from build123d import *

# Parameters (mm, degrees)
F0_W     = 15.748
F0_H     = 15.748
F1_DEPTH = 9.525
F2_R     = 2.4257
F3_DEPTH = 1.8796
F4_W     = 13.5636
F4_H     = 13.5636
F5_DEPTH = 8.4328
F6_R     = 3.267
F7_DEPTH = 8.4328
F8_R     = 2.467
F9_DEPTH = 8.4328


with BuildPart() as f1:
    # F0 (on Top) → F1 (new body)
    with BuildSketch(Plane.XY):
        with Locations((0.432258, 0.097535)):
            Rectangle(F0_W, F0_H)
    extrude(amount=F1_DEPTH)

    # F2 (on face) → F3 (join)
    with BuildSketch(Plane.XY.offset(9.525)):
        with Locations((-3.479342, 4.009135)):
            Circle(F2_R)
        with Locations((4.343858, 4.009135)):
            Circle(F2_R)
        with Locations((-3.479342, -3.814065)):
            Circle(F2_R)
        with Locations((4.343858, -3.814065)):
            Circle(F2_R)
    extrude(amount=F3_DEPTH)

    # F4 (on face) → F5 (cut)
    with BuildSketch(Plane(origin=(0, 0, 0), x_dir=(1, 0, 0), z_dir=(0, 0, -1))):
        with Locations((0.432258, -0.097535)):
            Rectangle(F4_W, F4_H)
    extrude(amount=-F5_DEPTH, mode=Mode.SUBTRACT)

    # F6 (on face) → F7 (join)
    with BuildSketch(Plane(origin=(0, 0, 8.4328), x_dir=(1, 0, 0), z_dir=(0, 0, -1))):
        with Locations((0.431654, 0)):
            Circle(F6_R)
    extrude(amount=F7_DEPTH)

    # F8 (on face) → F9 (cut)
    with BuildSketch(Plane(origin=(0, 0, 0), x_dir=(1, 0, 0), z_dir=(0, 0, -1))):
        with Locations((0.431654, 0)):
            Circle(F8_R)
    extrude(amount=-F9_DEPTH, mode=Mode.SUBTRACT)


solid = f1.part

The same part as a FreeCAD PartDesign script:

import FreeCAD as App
import Part
import Sketcher
Q = App.Units.Quantity

doc = App.newDocument("Part")
body = doc.addObject("PartDesign::Body", "Body")

# Sketch on XY plane
sketch1 = body.newObject("Sketcher::SketchObject", "Sketch")
sketch1.AttachmentSupport = (doc.getObject("XY_Plane"), [""])
sketch1.MapMode = "FlatFace"
sketch1.addGeometry(Part.LineSegment(App.Vector(-7, 8, 0), App.Vector(-7, -8, 0)), False)
sketch1.addGeometry(Part.LineSegment(App.Vector(-7, -8, 0), App.Vector(8, -8, 0)), False)
sketch1.addGeometry(Part.LineSegment(App.Vector(8, -8, 0), App.Vector(8, 8, 0)), False)
sketch1.addGeometry(Part.LineSegment(App.Vector(8, 8, 0), App.Vector(-7, 8, 0)), False)
sketch1.addConstraint(Sketcher.Constraint("Coincident", 0, 2, 1, 1))
sketch1.addConstraint(Sketcher.Constraint("Coincident", 1, 2, 2, 1))
sketch1.addConstraint(Sketcher.Constraint("Coincident", 2, 2, 3, 1))
sketch1.addConstraint(Sketcher.Constraint("Coincident", 3, 2, 0, 1))
sketch1.addConstraint(Sketcher.Constraint("Vertical", 0))
sketch1.addConstraint(Sketcher.Constraint("Horizontal", 1))
sketch1.addConstraint(Sketcher.Constraint("Vertical", 2))
sketch1.addConstraint(Sketcher.Constraint("Horizontal", 3))
sketch1.addConstraint(Sketcher.Constraint("Equal", 3, 0))
sketch1.addConstraint(Sketcher.Constraint("DistanceX", 1, 1, 1, 2, Q("0.62 in")))
sketch1.addConstraint(Sketcher.Constraint("DistanceX", 0, 2, -1, 1, 7.441742))
sketch1.addConstraint(Sketcher.Constraint("DistanceY", 0, 2, -1, 1, 7.776465))
pad1 = body.newObject("PartDesign::Pad", "Pad")
pad1.Profile = sketch1
pad1.Length = Q("0.375 in")

# Sketch on XY plane
sketch2 = body.newObject("Sketcher::SketchObject", "Sketch001")
sketch2.AttachmentSupport = (doc.getObject("XY_Plane"), [""])
sketch2.MapMode = "FlatFace"
sketch2.AttachmentOffset = App.Placement(App.Vector(0, 0, 0.375 * 25.4), App.Rotation())
sketch2.addGeometry(Part.Circle(App.Vector(-3.5, 4, 0), App.Vector(0, 0, 1), 2.4), False)
sketch2.addGeometry(Part.Circle(App.Vector(4.3, 4, 0), App.Vector(0, 0, 1), 2.4), False)
sketch2.addGeometry(Part.Circle(App.Vector(-3.5, -3.8, 0), App.Vector(0, 0, 1), 2.4), False)
sketch2.addGeometry(Part.Circle(App.Vector(4.3, -3.8, 0), App.Vector(0, 0, 1), 2.4), False)
sketch2.addConstraint(Sketcher.Constraint("Equal", 0, 1))
sketch2.addConstraint(Sketcher.Constraint("Equal", 1, 2))
sketch2.addConstraint(Sketcher.Constraint("Equal", 2, 3))
sketch2.addConstraint(Sketcher.Constraint("Horizontal", 0, 3, 1, 3))
sketch2.addConstraint(Sketcher.Constraint("Horizontal", 2, 3, 3, 3))
sketch2.addConstraint(Sketcher.Constraint("Vertical", 0, 3, 2, 3))
sketch2.addConstraint(Sketcher.Constraint("Vertical", 1, 3, 3, 3))
sketch2.addConstraint(Sketcher.Constraint("Diameter", 0, Q("0.191 in")))
sketch2.addConstraint(Sketcher.Constraint("DistanceX", 0, 3, 1, 3, Q("0.308 in")))
sketch2.addConstraint(Sketcher.Constraint("DistanceY", 2, 3, 0, 3, Q("0.308 in")))
sketch2.addConstraint(Sketcher.Constraint("DistanceX", 0, 3, -1, 1, 3.479342))
sketch2.addConstraint(Sketcher.Constraint("DistanceY", -1, 1, 0, 3, 4.009135))
pad2 = body.newObject("PartDesign::Pad", "Pad001")
pad2.Profile = sketch2
pad2.Length = Q("0.074 in")

# Sketch on XY plane
sketch3 = body.newObject("Sketcher::SketchObject", "Sketch002")
sketch3.AttachmentSupport = (doc.getObject("XY_Plane"), [""])
sketch3.MapMode = "FlatFace"
sketch3.addGeometry(Part.LineSegment(App.Vector(-6, -7, 0), App.Vector(-6, 7, 0)), False)
sketch3.addGeometry(Part.LineSegment(App.Vector(-6, 7, 0), App.Vector(7, 7, 0)), False)
sketch3.addGeometry(Part.LineSegment(App.Vector(7, 7, 0), App.Vector(7, -7, 0)), False)
sketch3.addGeometry(Part.LineSegment(App.Vector(7, -7, 0), App.Vector(-6, -7, 0)), False)
sketch3.addConstraint(Sketcher.Constraint("Coincident", 0, 2, 1, 1))
sketch3.addConstraint(Sketcher.Constraint("Coincident", 1, 2, 2, 1))
sketch3.addConstraint(Sketcher.Constraint("Coincident", 2, 2, 3, 1))
sketch3.addConstraint(Sketcher.Constraint("Coincident", 3, 2, 0, 1))
sketch3.addConstraint(Sketcher.Constraint("Vertical", 0))
sketch3.addConstraint(Sketcher.Constraint("Horizontal", 1))
sketch3.addConstraint(Sketcher.Constraint("Vertical", 2))
sketch3.addConstraint(Sketcher.Constraint("Horizontal", 3))
sketch3.addConstraint(Sketcher.Constraint("Equal", 3, 0))
sketch3.addConstraint(Sketcher.Constraint("DistanceX", 1, 1, 1, 2, Q("0.534 in")))
sketch3.addConstraint(Sketcher.Constraint("DistanceX", 0, 2, -1, 1, 6.349542))
sketch3.addConstraint(Sketcher.Constraint("DistanceY", -1, 1, 0, 2, 6.879335))
pocket1 = body.newObject("PartDesign::Pocket", "Pocket")
pocket1.Profile = sketch3
pocket1.Length = Q("0.332 in")
pocket1.Reversed = True

# Sketch on XY plane
sketch4 = body.newObject("Sketcher::SketchObject", "Sketch003")
sketch4.AttachmentSupport = (doc.getObject("XY_Plane"), [""])
sketch4.MapMode = "FlatFace"
sketch4.AttachmentOffset = App.Placement(App.Vector(0, 0, 0.332 * 25.4), App.Rotation())
sketch4.addGeometry(Part.Circle(App.Vector(0.4, 0, 0), App.Vector(0, 0, 1), 3.3), False)
sketch4.addConstraint(Sketcher.Constraint("PointOnObject", 0, 3, -1))
sketch4.addConstraint(Sketcher.Constraint("Diameter", 0, 6.534))
sketch4.addConstraint(Sketcher.Constraint("DistanceX", -1, 1, 0, 3, 0.431654))
pad3 = body.newObject("PartDesign::Pad", "Pad002")
pad3.Profile = sketch4
pad3.Length = Q("0.332 in")
pad3.Reversed = True

# Sketch on XY plane
sketch5 = body.newObject("Sketcher::SketchObject", "Sketch004")
sketch5.AttachmentSupport = (doc.getObject("XY_Plane"), [""])
sketch5.MapMode = "FlatFace"
sketch5.addGeometry(Part.Circle(App.Vector(0.4, 0, 0), App.Vector(0, 0, 1), 2.5), False)
sketch5.addConstraint(Sketcher.Constraint("PointOnObject", 0, 3, -1))
sketch5.addConstraint(Sketcher.Constraint("Diameter", 0, 4.934))
sketch5.addConstraint(Sketcher.Constraint("DistanceX", -1, 1, 0, 3, 0.431654))
pocket2 = body.newObject("PartDesign::Pocket", "Pocket001")
pocket2.Profile = sketch5
pocket2.Length = Q("0.332 in")
pocket2.Reversed = True

doc.recompute()
